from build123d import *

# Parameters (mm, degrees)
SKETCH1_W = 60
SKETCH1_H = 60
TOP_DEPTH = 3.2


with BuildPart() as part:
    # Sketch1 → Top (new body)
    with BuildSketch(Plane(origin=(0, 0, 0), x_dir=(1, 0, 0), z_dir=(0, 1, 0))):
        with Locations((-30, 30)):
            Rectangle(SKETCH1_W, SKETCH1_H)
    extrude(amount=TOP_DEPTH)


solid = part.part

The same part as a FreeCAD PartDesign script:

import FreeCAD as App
import Part
import Sketcher
Q = App.Units.Quantity


def add_polygon(sketch, points):
    """Adds a closed chain of lines whose ends are joined by coincident constraints."""
    first, n = sketch.GeometryCount, len(points)
    for a, b in zip(points, points[1:] + points[:1]):
        sketch.addGeometry(Part.LineSegment(App.Vector(*a, 0), App.Vector(*b, 0)), False)
    for i in range(n):
        sketch.addConstraint(Sketcher.Constraint("Coincident", first + i, 2, first + (i + 1) % n, 1))

doc = App.newDocument("Part")
params = doc.addObject("Spreadsheet::Sheet", "Params")
for row, (alias, value) in enumerate([
    ("sketch1_width", "60 mm"),
    ("pad1_length", "3.2 mm"),
], start=1):
    params.set(f"A{row}", alias)
    params.set(f"B{row}", "=" + value)
    params.setAlias(f"B{row}", alias)

body = doc.addObject("PartDesign::Body", "Body")

# Sketch on XZ plane
sketch1 = body.newObject("Sketcher::SketchObject", "Sketch")
sketch1.AttachmentSupport = (doc.getObject("XZ_Plane"), [""])
sketch1.MapMode = "FlatFace"
add_polygon(sketch1, [(-60, -60), (-60, 0), (0, 0), (0, -60)])  # lines 0-3
sketch1.addConstraint([
    Sketcher.Constraint("Vertical", 0),
    Sketcher.Constraint("Horizontal", 1),
    Sketcher.Constraint("Vertical", 2),
    Sketcher.Constraint("Horizontal", 3),
    Sketcher.Constraint("Coincident", 1, 2, -1, 1),
    Sketcher.Constraint("Equal", 3, 0),
    Sketcher.Constraint("DistanceX", 1, 1, 1, 2, Q("60 mm")),
])
sketch1.setExpression("Constraints[10]", "Params.sketch1_width")
pad1 = body.newObject("PartDesign::Pad", "Pad")
pad1.Profile = sketch1
pad1.setExpression("Length", "Params.pad1_length")
pad1.Reversed = True

doc.recompute()
